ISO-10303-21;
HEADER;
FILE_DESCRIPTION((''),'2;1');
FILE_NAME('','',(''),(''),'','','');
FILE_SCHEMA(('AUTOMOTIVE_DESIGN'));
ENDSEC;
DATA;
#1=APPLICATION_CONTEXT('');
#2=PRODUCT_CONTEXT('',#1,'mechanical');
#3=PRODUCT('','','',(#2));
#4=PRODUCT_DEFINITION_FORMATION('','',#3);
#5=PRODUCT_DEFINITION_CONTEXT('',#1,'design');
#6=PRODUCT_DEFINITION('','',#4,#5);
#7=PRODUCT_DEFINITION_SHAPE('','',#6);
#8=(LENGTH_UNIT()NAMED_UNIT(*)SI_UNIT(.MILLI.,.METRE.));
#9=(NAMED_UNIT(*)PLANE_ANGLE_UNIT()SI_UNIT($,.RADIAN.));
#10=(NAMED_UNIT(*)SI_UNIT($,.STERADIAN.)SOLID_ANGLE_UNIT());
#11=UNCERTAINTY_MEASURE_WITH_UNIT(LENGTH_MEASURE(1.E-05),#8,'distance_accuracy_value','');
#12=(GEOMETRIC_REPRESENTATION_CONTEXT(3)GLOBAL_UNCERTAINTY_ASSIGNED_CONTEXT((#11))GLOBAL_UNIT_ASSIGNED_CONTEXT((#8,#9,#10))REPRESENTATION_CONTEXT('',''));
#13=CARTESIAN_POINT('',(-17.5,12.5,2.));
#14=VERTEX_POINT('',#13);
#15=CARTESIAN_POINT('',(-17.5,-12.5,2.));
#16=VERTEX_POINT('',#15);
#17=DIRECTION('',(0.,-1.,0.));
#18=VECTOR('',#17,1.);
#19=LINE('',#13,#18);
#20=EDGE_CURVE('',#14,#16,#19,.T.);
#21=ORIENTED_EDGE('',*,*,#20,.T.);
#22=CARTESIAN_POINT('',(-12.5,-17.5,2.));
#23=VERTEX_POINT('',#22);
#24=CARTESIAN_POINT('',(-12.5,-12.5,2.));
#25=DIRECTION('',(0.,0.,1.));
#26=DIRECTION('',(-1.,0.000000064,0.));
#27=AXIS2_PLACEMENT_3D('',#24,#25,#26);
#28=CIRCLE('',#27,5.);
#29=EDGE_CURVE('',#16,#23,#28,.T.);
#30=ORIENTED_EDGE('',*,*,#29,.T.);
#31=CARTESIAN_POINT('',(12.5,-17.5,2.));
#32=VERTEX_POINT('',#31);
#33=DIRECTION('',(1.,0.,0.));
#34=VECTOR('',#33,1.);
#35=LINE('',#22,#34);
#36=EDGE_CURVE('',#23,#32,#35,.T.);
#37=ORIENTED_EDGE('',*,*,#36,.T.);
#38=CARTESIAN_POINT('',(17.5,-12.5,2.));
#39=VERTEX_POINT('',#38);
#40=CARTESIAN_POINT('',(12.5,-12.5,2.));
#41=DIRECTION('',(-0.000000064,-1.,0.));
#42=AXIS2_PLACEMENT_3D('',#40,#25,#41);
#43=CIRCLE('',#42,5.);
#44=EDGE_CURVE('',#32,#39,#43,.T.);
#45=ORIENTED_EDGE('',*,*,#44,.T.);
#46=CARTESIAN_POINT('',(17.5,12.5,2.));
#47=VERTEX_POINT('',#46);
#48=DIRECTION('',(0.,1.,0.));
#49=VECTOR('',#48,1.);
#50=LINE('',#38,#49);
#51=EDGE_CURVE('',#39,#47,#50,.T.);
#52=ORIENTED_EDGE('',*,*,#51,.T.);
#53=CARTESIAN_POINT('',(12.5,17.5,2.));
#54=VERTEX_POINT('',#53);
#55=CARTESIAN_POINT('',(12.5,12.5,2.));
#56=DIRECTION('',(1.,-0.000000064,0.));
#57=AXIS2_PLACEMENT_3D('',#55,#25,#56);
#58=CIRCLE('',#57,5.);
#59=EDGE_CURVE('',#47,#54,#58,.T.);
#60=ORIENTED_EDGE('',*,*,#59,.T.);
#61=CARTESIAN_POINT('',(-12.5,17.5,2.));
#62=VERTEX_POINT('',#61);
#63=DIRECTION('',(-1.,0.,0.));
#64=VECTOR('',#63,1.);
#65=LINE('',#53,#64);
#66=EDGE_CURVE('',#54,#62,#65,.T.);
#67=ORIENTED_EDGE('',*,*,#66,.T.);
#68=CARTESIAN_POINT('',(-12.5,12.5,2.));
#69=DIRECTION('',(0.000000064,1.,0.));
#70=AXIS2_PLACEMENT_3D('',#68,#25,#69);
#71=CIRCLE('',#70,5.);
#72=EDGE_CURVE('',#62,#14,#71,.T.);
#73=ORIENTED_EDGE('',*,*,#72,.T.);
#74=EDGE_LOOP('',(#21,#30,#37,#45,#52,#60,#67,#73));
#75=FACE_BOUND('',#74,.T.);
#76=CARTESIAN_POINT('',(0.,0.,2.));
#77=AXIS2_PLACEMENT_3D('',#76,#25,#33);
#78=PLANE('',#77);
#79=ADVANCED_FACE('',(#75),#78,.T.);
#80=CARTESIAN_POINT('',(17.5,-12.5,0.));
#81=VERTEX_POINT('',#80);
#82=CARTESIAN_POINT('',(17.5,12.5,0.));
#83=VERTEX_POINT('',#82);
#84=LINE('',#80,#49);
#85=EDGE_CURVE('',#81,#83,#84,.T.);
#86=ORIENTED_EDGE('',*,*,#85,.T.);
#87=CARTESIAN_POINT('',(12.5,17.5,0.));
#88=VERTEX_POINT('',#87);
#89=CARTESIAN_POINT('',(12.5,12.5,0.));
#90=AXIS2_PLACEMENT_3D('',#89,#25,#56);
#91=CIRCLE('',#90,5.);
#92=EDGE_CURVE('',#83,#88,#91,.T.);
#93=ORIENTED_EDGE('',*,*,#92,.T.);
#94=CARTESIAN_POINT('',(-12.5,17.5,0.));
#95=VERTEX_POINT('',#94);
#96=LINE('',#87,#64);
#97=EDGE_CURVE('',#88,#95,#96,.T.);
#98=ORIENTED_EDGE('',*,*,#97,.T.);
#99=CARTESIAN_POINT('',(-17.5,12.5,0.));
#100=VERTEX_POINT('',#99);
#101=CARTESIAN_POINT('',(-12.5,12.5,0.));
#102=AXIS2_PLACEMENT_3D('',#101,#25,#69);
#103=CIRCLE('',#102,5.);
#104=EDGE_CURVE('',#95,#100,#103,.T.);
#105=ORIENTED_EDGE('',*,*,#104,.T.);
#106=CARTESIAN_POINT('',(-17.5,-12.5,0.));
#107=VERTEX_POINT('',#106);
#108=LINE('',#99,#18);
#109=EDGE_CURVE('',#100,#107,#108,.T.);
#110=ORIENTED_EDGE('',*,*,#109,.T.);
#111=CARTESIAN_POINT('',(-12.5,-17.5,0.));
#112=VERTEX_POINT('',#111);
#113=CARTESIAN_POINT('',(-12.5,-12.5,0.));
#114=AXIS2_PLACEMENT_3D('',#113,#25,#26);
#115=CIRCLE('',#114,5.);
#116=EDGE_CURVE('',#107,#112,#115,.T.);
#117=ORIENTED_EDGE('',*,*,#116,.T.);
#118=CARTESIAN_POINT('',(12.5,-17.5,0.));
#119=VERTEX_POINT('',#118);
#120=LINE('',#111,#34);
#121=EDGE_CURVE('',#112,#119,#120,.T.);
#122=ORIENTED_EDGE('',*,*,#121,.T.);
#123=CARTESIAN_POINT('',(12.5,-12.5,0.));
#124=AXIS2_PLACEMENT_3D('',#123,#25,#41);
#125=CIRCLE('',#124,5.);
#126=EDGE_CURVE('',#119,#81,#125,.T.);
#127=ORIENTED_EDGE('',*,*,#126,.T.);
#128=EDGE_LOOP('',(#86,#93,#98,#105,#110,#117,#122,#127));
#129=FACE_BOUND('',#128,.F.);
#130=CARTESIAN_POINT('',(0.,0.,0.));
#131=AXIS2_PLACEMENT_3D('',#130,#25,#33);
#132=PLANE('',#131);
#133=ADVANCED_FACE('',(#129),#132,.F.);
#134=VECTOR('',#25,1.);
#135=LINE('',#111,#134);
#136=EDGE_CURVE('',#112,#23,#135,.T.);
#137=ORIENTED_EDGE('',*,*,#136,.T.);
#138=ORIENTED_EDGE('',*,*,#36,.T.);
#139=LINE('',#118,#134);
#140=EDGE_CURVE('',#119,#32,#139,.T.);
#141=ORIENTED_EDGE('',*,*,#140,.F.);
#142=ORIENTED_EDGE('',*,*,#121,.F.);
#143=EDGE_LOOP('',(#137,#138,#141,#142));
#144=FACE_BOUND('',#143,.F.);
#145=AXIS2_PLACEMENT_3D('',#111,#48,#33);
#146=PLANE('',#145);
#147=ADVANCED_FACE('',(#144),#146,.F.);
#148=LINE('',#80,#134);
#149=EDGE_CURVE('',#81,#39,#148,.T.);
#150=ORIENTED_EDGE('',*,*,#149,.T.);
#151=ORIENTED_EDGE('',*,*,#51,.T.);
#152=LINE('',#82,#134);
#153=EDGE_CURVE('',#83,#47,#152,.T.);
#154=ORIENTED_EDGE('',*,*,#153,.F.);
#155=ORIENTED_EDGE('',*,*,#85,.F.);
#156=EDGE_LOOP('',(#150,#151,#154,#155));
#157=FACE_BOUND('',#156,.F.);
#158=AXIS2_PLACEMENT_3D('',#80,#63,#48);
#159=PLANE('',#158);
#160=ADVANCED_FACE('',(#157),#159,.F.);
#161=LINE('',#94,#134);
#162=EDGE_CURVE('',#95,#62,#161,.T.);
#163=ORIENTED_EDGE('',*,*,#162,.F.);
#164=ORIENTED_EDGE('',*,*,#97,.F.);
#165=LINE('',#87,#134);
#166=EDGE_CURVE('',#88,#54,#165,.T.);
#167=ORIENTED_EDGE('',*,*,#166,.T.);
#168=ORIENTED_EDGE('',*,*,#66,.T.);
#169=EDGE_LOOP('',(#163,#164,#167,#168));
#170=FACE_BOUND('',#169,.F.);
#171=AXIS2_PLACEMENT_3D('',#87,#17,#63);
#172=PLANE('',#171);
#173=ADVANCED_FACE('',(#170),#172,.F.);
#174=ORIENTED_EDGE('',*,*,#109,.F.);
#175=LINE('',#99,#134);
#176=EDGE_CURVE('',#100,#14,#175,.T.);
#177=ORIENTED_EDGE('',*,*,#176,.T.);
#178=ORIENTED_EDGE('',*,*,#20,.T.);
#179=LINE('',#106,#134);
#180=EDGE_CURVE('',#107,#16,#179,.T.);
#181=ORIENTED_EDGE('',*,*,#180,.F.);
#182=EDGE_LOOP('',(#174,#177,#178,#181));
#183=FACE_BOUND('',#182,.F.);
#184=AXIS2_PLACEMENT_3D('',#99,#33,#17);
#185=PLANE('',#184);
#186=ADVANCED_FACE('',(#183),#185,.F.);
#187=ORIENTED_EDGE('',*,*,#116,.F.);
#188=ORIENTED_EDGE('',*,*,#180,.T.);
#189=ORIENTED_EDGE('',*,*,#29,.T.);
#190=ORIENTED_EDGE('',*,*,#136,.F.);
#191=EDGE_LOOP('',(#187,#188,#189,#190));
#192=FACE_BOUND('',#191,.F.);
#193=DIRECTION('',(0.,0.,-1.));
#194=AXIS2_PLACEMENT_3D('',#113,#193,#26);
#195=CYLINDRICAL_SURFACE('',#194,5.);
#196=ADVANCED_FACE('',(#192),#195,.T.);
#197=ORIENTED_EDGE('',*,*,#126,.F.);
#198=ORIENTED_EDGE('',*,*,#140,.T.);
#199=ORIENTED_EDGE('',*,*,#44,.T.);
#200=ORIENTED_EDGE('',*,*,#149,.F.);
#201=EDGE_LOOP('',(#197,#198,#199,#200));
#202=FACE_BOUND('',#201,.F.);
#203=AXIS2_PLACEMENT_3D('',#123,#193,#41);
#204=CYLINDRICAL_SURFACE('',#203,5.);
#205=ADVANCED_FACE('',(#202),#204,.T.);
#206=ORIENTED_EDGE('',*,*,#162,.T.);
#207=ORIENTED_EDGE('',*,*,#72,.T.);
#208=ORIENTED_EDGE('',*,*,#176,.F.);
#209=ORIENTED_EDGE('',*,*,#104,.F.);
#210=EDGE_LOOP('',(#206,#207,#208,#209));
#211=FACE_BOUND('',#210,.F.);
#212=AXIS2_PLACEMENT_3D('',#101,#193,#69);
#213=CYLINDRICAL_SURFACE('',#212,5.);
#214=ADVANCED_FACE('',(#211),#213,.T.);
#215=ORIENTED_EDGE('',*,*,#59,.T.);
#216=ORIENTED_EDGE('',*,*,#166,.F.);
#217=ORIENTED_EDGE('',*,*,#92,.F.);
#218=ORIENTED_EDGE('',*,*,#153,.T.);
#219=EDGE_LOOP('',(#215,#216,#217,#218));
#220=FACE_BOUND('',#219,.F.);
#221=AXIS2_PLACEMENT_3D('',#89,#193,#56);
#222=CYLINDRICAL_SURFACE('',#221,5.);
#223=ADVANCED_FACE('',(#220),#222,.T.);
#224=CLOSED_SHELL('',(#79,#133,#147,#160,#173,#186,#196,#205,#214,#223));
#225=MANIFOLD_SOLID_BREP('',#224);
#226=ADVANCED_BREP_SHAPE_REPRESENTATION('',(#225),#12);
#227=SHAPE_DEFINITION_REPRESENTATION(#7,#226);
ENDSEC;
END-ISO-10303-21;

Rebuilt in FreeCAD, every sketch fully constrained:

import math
import FreeCAD as App
import Part
import Sketcher

doc = App.newDocument("Part")
body = doc.addObject("PartDesign::Body", "Body")

sketch1 = body.newObject("Sketcher::SketchObject", "Sketch")
sketch1.AttachmentSupport = (doc.getObject("XY_Plane"), [""])
sketch1.MapMode = "FlatFace"
sketch1.addGeometry(Part.LineSegment(App.Vector(-17.5, 12.5, 0), App.Vector(-17.5, -12.5, 0)), False)
sketch1.addGeometry(Part.ArcOfCircle(Part.Circle(App.Vector(-12.5, -12.5, 0), App.Vector(0, 0, 1), 5), math.radians(180), math.radians(270)), False)
sketch1.addGeometry(Part.LineSegment(App.Vector(-12.5, -17.5, 0), App.Vector(12.5, -17.5, 0)), False)
sketch1.addGeometry(Part.ArcOfCircle(Part.Circle(App.Vector(12.5, -12.5, 0), App.Vector(0, 0, 1), 5), math.radians(-90), math.radians(0)), False)
sketch1.addGeometry(Part.LineSegment(App.Vector(17.5, -12.5, 0), App.Vector(17.5, 12.5, 0)), False)
sketch1.addGeometry(Part.ArcOfCircle(Part.Circle(App.Vector(12.5, 12.5, 0), App.Vector(0, 0, 1), 5), math.radians(0), math.radians(90)), False)
sketch1.addGeometry(Part.LineSegment(App.Vector(12.5, 17.5, 0), App.Vector(-12.5, 17.5, 0)), False)
sketch1.addGeometry(Part.ArcOfCircle(Part.Circle(App.Vector(-12.5, 12.5, 0), App.Vector(0, 0, 1), 5), math.radians(90), math.radians(180)), False)
sketch1.addConstraint(Sketcher.Constraint("Tangent", 0, 2, 1, 1))
sketch1.addConstraint(Sketcher.Constraint("Tangent", 1, 2, 2, 1))
sketch1.addConstraint(Sketcher.Constraint("Tangent", 2, 2, 3, 1))
sketch1.addConstraint(Sketcher.Constraint("Tangent", 3, 2, 4, 1))
sketch1.addConstraint(Sketcher.Constraint("Tangent", 4, 2, 5, 1))
sketch1.addConstraint(Sketcher.Constraint("Tangent", 5, 2, 6, 1))
sketch1.addConstraint(Sketcher.Constraint("Tangent", 6, 2, 7, 1))
sketch1.addConstraint(Sketcher.Constraint("Tangent", 7, 2, 0, 1))
sketch1.addConstraint(Sketcher.Constraint("Vertical", 0))
sketch1.addConstraint(Sketcher.Constraint("Horizontal", 2))
sketch1.addConstraint(Sketcher.Constraint("Vertical", 4))
sketch1.addConstraint(Sketcher.Constraint("Horizontal", 6))
sketch1.addConstraint(Sketcher.Constraint("Equal", 1, 3))
sketch1.addConstraint(Sketcher.Constraint("Equal", 3, 5))
sketch1.addConstraint(Sketcher.Constraint("Equal", 5, 7))
sketch1.addConstraint(Sketcher.Constraint("Symmetric", 1, 3, 5, 3, -1, 1))
sketch1.addConstraint(Sketcher.Constraint("Equal", 6, 0))
sketch1.addConstraint(Sketcher.Constraint("Radius", 1, 5.0))
sketch1.addConstraint(Sketcher.Constraint("DistanceX", 2, 1, 2, 2, 25.0))
pad1 = body.newObject("PartDesign::Pad", "Pad")
pad1.Profile = sketch1
pad1.Length = 2

doc.recompute()
